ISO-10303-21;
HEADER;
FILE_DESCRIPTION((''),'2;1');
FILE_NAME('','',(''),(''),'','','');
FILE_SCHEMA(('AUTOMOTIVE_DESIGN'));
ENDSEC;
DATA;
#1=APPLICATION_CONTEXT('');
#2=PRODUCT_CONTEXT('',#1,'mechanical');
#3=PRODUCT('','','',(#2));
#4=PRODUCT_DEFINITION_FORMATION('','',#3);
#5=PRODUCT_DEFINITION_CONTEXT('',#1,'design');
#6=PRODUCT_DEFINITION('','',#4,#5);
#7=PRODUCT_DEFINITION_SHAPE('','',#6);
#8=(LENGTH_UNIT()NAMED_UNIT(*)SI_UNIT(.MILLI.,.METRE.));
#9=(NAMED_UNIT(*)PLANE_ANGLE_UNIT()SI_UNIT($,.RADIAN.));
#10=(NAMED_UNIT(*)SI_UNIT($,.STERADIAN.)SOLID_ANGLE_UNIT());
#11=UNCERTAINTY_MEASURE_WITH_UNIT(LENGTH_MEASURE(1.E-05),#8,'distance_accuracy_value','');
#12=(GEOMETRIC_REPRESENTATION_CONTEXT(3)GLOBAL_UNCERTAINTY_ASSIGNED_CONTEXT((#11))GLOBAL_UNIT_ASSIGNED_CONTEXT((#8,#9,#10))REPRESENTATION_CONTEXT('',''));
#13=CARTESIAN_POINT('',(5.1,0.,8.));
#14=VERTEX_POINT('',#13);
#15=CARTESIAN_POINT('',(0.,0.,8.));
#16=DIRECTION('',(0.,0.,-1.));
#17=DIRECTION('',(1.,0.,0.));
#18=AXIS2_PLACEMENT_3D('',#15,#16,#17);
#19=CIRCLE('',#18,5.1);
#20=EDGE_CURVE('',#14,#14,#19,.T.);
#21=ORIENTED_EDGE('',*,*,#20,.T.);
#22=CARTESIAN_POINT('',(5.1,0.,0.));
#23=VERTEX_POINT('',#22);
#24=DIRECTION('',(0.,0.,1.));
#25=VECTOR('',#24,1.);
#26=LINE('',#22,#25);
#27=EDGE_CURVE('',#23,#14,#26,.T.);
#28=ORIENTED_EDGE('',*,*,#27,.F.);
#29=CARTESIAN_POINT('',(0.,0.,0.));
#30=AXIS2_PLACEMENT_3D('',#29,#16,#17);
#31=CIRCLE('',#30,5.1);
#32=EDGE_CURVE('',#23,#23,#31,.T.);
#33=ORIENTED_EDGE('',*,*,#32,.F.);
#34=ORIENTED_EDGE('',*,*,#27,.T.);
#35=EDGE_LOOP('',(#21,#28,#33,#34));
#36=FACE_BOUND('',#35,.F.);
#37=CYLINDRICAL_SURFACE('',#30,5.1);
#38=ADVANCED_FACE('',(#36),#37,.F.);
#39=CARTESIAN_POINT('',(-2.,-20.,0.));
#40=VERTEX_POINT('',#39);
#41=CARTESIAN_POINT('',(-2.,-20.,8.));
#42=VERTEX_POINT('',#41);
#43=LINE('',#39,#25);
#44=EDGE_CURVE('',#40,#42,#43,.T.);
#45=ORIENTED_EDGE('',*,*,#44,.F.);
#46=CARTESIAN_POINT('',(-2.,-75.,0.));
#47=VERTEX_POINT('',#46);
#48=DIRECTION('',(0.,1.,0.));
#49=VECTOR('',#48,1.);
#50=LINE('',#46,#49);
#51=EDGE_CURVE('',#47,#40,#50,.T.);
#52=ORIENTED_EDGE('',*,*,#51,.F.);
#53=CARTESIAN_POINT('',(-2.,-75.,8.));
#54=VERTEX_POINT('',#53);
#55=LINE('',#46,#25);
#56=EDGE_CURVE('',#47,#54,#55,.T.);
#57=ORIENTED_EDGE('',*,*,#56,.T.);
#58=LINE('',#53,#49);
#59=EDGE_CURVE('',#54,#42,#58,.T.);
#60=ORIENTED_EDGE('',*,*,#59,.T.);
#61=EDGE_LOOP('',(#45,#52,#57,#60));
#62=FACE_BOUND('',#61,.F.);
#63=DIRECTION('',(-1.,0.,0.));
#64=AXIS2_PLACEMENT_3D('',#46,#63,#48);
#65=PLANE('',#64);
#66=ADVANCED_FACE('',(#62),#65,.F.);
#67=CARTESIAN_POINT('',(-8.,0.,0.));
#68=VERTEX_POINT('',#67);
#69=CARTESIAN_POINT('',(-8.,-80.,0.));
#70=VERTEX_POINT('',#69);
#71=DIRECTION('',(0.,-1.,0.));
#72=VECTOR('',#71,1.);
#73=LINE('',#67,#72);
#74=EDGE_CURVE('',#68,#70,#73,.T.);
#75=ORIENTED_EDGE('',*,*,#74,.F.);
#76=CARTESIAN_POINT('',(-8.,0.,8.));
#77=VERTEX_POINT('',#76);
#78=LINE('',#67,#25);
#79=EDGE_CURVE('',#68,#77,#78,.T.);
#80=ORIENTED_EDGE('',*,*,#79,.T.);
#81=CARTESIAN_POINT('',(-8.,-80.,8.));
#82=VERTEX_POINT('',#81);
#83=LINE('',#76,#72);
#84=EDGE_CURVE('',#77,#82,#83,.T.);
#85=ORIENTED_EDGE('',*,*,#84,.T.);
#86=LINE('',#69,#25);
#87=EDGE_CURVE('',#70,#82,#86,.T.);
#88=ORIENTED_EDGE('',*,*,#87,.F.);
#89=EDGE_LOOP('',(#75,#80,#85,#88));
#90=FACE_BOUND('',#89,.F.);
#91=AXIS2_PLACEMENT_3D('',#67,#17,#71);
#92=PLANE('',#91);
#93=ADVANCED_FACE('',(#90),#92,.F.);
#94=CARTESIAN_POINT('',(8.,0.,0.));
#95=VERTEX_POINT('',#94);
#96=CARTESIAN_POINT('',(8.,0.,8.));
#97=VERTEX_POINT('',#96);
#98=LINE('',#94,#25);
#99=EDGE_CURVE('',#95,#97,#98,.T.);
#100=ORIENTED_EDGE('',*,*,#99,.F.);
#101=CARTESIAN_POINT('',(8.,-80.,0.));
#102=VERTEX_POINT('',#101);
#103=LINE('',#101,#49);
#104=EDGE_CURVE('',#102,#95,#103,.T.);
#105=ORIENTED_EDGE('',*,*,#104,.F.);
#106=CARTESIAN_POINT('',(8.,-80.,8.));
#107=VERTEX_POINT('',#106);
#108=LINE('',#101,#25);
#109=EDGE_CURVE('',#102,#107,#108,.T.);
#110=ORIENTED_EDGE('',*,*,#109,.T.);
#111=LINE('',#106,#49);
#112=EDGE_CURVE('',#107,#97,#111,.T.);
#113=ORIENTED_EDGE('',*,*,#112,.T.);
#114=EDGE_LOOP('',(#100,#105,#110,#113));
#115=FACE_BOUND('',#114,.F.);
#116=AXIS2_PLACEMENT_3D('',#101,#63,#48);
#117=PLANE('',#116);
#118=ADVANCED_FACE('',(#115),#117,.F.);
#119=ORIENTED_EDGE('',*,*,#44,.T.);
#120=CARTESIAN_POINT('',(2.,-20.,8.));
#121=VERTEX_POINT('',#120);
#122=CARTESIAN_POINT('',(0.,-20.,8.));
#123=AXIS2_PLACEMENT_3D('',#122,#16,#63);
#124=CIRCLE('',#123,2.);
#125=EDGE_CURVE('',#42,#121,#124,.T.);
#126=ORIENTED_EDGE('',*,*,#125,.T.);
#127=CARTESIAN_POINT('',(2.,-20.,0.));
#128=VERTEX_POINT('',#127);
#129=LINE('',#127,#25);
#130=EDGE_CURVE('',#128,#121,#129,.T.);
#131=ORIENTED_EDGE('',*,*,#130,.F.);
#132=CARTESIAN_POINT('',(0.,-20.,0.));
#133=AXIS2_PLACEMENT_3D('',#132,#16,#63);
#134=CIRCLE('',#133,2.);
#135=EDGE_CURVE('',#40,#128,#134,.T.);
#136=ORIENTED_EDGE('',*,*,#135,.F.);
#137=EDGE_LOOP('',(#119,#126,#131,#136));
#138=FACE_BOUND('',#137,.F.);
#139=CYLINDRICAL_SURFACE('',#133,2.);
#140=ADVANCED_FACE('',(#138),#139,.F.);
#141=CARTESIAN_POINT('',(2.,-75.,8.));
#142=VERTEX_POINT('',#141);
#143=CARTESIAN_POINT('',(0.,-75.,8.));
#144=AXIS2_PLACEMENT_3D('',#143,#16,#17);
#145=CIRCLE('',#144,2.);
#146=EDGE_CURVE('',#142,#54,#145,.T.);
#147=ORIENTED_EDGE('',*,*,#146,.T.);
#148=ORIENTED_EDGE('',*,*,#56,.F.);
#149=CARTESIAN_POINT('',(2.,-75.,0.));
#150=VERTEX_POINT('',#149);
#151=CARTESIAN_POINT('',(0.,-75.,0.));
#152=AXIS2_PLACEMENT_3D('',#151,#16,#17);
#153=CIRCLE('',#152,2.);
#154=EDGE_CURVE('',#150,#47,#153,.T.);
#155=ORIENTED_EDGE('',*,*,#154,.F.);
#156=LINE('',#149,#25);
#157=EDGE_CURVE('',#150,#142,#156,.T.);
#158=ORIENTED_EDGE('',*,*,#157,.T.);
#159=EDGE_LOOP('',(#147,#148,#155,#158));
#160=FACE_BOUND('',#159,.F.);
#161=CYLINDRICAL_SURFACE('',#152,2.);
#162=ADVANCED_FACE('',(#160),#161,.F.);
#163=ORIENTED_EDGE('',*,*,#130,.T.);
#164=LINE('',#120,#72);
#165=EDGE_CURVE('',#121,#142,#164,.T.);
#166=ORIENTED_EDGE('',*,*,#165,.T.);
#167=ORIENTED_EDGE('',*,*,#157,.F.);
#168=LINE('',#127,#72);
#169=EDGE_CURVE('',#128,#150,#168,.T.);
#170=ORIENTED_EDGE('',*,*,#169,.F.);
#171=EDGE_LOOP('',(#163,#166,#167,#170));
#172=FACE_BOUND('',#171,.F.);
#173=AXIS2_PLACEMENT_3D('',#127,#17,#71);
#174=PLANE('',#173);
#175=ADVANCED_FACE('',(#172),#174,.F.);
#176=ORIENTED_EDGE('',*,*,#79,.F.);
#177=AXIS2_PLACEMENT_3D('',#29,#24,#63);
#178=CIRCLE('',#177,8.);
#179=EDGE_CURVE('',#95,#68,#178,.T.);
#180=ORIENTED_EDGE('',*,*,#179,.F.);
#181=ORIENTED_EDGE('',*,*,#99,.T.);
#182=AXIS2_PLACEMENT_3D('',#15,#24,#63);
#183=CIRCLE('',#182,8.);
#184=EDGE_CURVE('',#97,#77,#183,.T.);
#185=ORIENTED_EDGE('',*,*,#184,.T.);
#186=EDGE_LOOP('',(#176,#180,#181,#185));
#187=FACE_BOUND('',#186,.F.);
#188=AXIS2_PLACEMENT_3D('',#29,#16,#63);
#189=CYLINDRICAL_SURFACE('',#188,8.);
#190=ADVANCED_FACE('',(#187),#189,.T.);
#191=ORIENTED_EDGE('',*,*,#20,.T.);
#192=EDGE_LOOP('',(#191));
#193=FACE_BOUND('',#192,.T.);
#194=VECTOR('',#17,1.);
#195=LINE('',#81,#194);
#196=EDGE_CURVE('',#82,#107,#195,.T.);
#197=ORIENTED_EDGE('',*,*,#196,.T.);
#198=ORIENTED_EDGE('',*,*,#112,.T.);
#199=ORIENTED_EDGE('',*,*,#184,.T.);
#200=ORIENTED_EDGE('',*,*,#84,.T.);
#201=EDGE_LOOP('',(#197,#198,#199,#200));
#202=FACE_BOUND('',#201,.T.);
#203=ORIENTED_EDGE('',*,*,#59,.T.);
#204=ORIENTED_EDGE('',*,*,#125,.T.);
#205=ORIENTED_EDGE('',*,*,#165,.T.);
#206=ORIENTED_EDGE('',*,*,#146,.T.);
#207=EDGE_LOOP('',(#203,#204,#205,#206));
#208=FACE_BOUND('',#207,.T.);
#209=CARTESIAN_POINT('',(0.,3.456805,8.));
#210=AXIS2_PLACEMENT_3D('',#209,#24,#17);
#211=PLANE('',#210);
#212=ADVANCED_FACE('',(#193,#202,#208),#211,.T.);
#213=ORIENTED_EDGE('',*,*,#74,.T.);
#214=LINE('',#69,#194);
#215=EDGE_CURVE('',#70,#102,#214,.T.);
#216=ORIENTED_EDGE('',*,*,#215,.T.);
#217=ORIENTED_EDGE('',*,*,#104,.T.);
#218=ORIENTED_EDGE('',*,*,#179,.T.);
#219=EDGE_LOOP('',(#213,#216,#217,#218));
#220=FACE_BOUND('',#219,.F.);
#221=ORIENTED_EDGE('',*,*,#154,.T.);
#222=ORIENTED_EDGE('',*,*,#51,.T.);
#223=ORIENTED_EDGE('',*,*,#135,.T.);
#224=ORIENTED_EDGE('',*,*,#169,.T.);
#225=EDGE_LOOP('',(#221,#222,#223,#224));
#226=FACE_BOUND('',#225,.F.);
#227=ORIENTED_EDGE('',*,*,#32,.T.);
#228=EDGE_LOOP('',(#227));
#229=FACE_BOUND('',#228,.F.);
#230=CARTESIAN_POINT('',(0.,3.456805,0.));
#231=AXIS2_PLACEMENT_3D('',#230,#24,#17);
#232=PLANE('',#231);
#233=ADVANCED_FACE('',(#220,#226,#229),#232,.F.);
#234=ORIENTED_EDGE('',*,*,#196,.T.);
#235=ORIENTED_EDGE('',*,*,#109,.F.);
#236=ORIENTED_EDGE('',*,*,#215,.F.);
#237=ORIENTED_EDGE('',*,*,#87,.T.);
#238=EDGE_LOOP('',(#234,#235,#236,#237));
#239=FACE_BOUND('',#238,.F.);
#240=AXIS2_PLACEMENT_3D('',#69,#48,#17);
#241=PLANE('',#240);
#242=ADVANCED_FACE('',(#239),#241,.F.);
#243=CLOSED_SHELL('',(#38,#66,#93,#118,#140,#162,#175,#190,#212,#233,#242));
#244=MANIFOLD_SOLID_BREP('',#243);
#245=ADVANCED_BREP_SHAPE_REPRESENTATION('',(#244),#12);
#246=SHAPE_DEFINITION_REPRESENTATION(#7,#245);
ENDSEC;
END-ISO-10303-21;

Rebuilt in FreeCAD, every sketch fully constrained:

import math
import FreeCAD as App
import Part
import Sketcher

doc = App.newDocument("Part")
params = doc.addObject("Spreadsheet::Sheet", "Params")
for row, (alias, value) in enumerate([
    ("sketch1_radius", "8 mm"),
    ("sketch1_radius2", "2 mm"),
    ("sketch1_diameter", "10.2 mm"),
    ("sketch1_height", "80 mm"),
    ("sketch1_height2", "55 mm"),
    ("pad1_length", "8 mm"),
], start=1):
    params.set(f"A{row}", alias)
    params.set(f"B{row}", "=" + value)
    params.setAlias(f"B{row}", alias)

body = doc.addObject("PartDesign::Body", "Body")

# Sketch on XY plane
sketch1 = body.newObject("Sketcher::SketchObject", "Sketch")
sketch1.AttachmentSupport = (doc.getObject("XY_Plane"), [""])
sketch1.MapMode = "FlatFace"
sketch1.addGeometry(Part.ArcOfCircle(Part.Circle(App.Vector(0, 0, 0), App.Vector(0, 0, 1), 8), math.radians(0), math.radians(180)), False)
sketch1.addGeometry(Part.LineSegment(App.Vector(-8, 0, 0), App.Vector(-8, -80, 0)), False)
sketch1.addGeometry(Part.LineSegment(App.Vector(-8, -80, 0), App.Vector(8, -80, 0)), False)
sketch1.addGeometry(Part.LineSegment(App.Vector(8, -80, 0), App.Vector(8, 0, 0)), False)
sketch1.addGeometry(Part.LineSegment(App.Vector(-2, -75, 0), App.Vector(-2, -20, 0)), False)
sketch1.addGeometry(Part.ArcOfCircle(Part.Circle(App.Vector(0, -20, 0), App.Vector(0, 0, 1), 2), math.radians(0), math.radians(180)), False)
sketch1.addGeometry(Part.LineSegment(App.Vector(2, -20, 0), App.Vector(2, -75, 0)), False)
sketch1.addGeometry(Part.ArcOfCircle(Part.Circle(App.Vector(0, -75, 0), App.Vector(0, 0, 1), 2), math.radians(180), math.radians(360)), False)
sketch1.addGeometry(Part.Circle(App.Vector(0, 0, 0), App.Vector(0, 0, 1), 5.1), False)
sketch1.addConstraint(Sketcher.Constraint("Tangent", 0, 2, 1, 1))
sketch1.addConstraint(Sketcher.Constraint("Coincident", 1, 2, 2, 1))
sketch1.addConstraint(Sketcher.Constraint("Coincident", 2, 2, 3, 1))
sketch1.addConstraint(Sketcher.Constraint("Tangent", 3, 2, 0, 1))
sketch1.addConstraint(Sketcher.Constraint("Tangent", 4, 2, 5, 2))
sketch1.addConstraint(Sketcher.Constraint("Tangent", 5, 1, 6, 1))
sketch1.addConstraint(Sketcher.Constraint("Tangent", 6, 2, 7, 2))
sketch1.addConstraint(Sketcher.Constraint("Tangent", 7, 1, 4, 1))
sketch1.addConstraint(Sketcher.Constraint("Vertical", 1))
sketch1.addConstraint(Sketcher.Constraint("Horizontal", 2))
sketch1.addConstraint(Sketcher.Constraint("Vertical", 3))
sketch1.addConstraint(Sketcher.Constraint("Vertical", 4))
sketch1.addConstraint(Sketcher.Constraint("Vertical", 6))
sketch1.addConstraint(Sketcher.Constraint("Coincident", 0, 3, -1, 1))
sketch1.addConstraint(Sketcher.Constraint("Coincident", 8, 3, -1, 1))
sketch1.addConstraint(Sketcher.Constraint("PointOnObject", 5, 3, -2))
sketch1.addConstraint(Sketcher.Constraint("Radius", 0, 8.0))
sketch1.addConstraint(Sketcher.Constraint("Radius", 5, 2.0))
sketch1.addConstraint(Sketcher.Constraint("Diameter", 8, 10.2))
sketch1.addConstraint(Sketcher.Constraint("DistanceY", 1, 2, 1, 1, 80.0))
sketch1.addConstraint(Sketcher.Constraint("DistanceY", 4, 1, 4, 2, 55.0))
sketch1.addConstraint(Sketcher.Constraint("DistanceY", 5, 3, -1, 1, 20.0))
sketch1.setExpression("Constraints[16]", "Params.sketch1_radius")
sketch1.setExpression("Constraints[17]", "Params.sketch1_radius2")
sketch1.setExpression("Constraints[18]", "Params.sketch1_diameter")
sketch1.setExpression("Constraints[19]", "Params.sketch1_height")
sketch1.setExpression("Constraints[20]", "Params.sketch1_height2")
pad1 = body.newObject("PartDesign::Pad", "Pad")
pad1.Profile = sketch1
pad1.setExpression("Length", "Params.pad1_length")

doc.recompute()
